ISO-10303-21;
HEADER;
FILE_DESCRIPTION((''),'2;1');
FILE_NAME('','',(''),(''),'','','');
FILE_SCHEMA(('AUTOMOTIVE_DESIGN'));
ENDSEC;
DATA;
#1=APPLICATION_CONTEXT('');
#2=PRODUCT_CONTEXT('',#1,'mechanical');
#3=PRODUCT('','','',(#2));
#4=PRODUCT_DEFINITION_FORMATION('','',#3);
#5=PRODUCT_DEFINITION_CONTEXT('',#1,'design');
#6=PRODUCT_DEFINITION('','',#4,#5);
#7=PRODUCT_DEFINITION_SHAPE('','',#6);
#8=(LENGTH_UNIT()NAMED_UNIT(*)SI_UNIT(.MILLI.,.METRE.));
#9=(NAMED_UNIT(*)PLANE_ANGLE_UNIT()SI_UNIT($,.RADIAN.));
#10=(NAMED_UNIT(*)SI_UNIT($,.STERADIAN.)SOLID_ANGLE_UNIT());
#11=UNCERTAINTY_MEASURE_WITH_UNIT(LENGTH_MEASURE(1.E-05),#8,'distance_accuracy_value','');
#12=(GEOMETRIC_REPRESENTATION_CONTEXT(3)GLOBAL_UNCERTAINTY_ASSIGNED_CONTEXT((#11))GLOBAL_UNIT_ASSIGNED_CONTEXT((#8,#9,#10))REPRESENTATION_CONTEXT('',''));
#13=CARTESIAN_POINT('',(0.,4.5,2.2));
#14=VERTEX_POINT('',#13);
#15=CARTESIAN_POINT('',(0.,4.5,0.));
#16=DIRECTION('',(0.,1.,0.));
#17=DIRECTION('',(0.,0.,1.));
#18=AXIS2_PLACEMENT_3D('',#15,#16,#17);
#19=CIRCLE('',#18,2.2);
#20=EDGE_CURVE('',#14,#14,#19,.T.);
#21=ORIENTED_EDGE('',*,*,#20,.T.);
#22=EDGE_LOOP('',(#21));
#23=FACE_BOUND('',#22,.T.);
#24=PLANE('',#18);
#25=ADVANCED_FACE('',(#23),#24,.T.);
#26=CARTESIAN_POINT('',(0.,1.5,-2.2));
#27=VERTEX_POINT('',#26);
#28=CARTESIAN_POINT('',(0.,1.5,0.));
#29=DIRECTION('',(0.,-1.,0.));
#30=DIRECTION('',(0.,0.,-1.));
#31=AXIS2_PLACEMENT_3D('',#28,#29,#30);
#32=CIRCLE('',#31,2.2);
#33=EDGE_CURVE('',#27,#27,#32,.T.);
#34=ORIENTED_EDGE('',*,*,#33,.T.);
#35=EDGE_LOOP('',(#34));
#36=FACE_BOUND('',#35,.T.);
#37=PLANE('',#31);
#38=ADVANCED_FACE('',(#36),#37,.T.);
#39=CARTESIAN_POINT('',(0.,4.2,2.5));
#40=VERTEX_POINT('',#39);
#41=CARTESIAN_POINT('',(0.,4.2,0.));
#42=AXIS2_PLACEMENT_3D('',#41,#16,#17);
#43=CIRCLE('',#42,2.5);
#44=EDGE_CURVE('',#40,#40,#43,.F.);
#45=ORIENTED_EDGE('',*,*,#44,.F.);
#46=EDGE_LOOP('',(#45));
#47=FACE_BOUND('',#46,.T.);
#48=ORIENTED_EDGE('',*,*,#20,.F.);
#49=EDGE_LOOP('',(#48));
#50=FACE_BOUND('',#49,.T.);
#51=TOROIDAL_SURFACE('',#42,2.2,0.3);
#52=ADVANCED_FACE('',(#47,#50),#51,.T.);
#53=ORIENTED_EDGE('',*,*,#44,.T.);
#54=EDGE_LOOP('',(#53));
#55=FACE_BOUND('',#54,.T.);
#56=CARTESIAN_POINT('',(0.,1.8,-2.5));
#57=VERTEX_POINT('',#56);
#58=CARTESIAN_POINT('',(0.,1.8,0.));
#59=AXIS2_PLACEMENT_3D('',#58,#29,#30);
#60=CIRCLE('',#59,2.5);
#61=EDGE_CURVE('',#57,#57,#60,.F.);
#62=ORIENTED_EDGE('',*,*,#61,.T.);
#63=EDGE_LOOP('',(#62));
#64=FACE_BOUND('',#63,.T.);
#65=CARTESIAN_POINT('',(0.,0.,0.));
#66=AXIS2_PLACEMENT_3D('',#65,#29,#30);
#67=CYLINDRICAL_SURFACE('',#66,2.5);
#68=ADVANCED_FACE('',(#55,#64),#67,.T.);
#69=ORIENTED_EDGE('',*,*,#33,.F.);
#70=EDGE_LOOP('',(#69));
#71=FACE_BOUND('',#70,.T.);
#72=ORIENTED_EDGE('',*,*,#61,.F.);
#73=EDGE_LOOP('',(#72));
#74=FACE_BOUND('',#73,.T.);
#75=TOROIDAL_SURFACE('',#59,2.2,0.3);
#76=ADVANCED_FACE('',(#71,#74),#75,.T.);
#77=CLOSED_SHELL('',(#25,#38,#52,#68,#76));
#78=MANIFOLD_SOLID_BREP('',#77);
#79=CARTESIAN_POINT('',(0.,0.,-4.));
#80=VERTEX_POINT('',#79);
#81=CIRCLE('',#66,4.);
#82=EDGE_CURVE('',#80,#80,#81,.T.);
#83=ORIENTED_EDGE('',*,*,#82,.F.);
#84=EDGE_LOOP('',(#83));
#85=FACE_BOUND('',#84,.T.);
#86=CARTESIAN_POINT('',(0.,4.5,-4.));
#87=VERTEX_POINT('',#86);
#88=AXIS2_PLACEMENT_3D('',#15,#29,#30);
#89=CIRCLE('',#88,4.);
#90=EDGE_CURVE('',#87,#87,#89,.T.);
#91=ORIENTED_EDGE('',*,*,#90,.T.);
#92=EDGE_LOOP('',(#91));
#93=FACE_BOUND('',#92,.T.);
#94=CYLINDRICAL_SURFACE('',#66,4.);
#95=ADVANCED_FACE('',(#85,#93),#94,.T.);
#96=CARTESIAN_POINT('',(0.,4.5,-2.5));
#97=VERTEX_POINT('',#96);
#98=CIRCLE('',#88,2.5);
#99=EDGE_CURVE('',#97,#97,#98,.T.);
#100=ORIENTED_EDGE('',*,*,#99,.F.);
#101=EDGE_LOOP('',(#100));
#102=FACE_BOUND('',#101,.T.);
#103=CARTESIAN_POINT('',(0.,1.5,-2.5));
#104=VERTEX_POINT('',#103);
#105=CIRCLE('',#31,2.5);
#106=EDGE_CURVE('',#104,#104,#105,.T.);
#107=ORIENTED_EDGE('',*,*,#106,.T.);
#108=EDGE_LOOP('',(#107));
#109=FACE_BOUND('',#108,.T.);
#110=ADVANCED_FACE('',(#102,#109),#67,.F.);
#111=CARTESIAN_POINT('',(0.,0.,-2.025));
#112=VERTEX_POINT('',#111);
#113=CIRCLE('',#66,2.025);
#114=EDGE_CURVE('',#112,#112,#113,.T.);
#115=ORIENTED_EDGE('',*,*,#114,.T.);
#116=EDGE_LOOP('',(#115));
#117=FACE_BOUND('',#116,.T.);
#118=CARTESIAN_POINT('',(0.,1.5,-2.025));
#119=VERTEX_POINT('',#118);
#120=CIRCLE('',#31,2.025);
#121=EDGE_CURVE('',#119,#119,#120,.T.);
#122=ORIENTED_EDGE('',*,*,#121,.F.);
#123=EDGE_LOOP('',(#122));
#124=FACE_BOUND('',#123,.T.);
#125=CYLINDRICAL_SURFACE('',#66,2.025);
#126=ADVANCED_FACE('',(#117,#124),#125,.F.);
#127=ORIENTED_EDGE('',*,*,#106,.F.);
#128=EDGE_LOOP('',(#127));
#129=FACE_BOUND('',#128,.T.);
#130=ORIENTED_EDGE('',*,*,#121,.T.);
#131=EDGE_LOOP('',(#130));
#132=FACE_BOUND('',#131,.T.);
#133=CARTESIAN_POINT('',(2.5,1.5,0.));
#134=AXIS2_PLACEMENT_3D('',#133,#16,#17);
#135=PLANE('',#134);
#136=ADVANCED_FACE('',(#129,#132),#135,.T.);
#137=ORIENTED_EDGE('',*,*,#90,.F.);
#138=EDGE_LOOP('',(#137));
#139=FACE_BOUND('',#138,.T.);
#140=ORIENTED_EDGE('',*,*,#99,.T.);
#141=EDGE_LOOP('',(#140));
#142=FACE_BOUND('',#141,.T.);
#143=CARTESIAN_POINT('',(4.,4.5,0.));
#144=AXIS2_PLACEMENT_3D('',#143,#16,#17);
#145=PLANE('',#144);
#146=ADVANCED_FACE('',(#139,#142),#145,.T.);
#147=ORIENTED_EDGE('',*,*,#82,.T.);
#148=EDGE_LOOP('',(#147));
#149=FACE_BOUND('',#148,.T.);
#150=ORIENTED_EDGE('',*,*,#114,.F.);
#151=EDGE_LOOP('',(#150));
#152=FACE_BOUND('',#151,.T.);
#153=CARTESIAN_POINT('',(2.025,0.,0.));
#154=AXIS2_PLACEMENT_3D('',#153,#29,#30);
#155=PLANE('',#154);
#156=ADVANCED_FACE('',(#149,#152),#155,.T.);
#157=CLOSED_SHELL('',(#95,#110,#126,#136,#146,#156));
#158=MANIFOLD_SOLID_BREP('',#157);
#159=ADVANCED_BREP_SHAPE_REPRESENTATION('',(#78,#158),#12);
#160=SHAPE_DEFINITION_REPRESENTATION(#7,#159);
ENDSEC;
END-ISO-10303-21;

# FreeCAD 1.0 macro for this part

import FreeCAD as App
import Part
import Sketcher

V = App.Vector
Q = App.Units.Quantity


def edges_at(feature, points):
    """Names of the edges that pass closest to the given points."""
    edges = feature.Shape.Edges
    near = lambda p: min(range(len(edges)), key=lambda i: edges[i].distToShape(Part.Vertex(*p))[0])
    return sorted({f"Edge{near(p) + 1}" for p in points})

doc = App.newDocument("Part")
body = doc.addObject("PartDesign::Body", "Body")

sketch1 = body.newObject("Sketcher::SketchObject", "Sketch")
sketch1.AttachmentSupport = (doc.getObject("XY_Plane"), [""])
sketch1.MapMode = "FlatFace"
sketch1.addGeometry(Part.LineSegment(V(2.02, 1.5, 0), V(2.02, 0, 0)), False)
sketch1.addGeometry(Part.LineSegment(V(2.02, 0, 0), V(4, 0, 0)), False)
sketch1.addGeometry(Part.LineSegment(V(4, 0, 0), V(4, 4.5, 0)), False)
sketch1.addGeometry(Part.LineSegment(V(4, 4.5, 0), V(2.5, 4.5, 0)), False)
sketch1.addGeometry(Part.LineSegment(V(2.5, 4.5, 0), V(2.5, 1.5, 0)), False)
sketch1.addGeometry(Part.LineSegment(V(2.5, 1.5, 0), V(2.02, 1.5, 0)), False)
sketch1.addConstraint(Sketcher.Constraint("Coincident", 0, 2, 1, 1))
sketch1.addConstraint(Sketcher.Constraint("Coincident", 1, 2, 2, 1))
sketch1.addConstraint(Sketcher.Constraint("Coincident", 2, 2, 3, 1))
sketch1.addConstraint(Sketcher.Constraint("Coincident", 3, 2, 4, 1))
sketch1.addConstraint(Sketcher.Constraint("Coincident", 4, 2, 5, 1))
sketch1.addConstraint(Sketcher.Constraint("Coincident", 5, 2, 0, 1))
sketch1.addConstraint(Sketcher.Constraint("Vertical", 0))
sketch1.addConstraint(Sketcher.Constraint("Horizontal", 1))
sketch1.addConstraint(Sketcher.Constraint("Vertical", 2))
sketch1.addConstraint(Sketcher.Constraint("Horizontal", 3))
sketch1.addConstraint(Sketcher.Constraint("Vertical", 4))
sketch1.addConstraint(Sketcher.Constraint("Horizontal", 5))
sketch1.addConstraint(Sketcher.Constraint("PointOnObject", 0, 2, -1))
sketch1.addConstraint(Sketcher.Constraint("Equal", 3, 0))
sketch1.addConstraint(Sketcher.Constraint("DistanceY", 4, 2, 4, 1, Q("3 mm")))
sketch1.addConstraint(Sketcher.Constraint("DistanceX", 3, 2, 3, 1, Q("1.5 mm")))
sketch1.addConstraint(Sketcher.Constraint("DistanceX", -1, 1, 1, 2, Q("4 mm")))
sketch1.addConstraint(Sketcher.Constraint("DistanceX", 1, 1, 1, 2, Q("1.975 mm")))
revolution = body.newObject("PartDesign::Revolution", "Revolution")
revolution.Profile = sketch1
revolution.ReferenceAxis = (sketch1, ["V_Axis"])
revolution.Angle = 360
body2 = doc.addObject("PartDesign::Body", "Body001")

sketch2 = body2.newObject("Sketcher::SketchObject", "Sketch001")
sketch2.AttachmentSupport = (doc.getObject("XY_Plane001"), [""])
sketch2.MapMode = "FlatFace"
sketch2.addGeometry(Part.LineSegment(V(0, 4.5, 0), V(0, 1.5, 0)), False)
sketch2.addGeometry(Part.LineSegment(V(0, 1.5, 0), V(2.5, 1.5, 0)), False)
sketch2.addGeometry(Part.LineSegment(V(2.5, 1.5, 0), V(2.5, 4.5, 0)), False)
sketch2.addGeometry(Part.LineSegment(V(2.5, 4.5, 0), V(0, 4.5, 0)), False)
sketch2.addConstraint(Sketcher.Constraint("Coincident", 0, 2, 1, 1))
sketch2.addConstraint(Sketcher.Constraint("Coincident", 1, 2, 2, 1))
sketch2.addConstraint(Sketcher.Constraint("Coincident", 2, 2, 3, 1))
sketch2.addConstraint(Sketcher.Constraint("Coincident", 3, 2, 0, 1))
sketch2.addConstraint(Sketcher.Constraint("Vertical", 0))
sketch2.addConstraint(Sketcher.Constraint("Horizontal", 1))
sketch2.addConstraint(Sketcher.Constraint("Vertical", 2))
sketch2.addConstraint(Sketcher.Constraint("Horizontal", 3))
sketch2.addConstraint(Sketcher.Constraint("PointOnObject", 0, 2, -2))
sketch2.addConstraint(Sketcher.Constraint("DistanceY", 0, 2, 0, 1, Q("3 mm")))
sketch2.addConstraint(Sketcher.Constraint("DistanceX", 1, 1, 1, 2, Q("2.5 mm")))
sketch2.addConstraint(Sketcher.Constraint("DistanceY", -1, 1, 0, 2, Q("1.5 mm")))
revolution2 = body2.newObject("PartDesign::Revolution", "Revolution001")
revolution2.Profile = sketch2
revolution2.ReferenceAxis = (sketch2, ["V_Axis"])
revolution2.Angle = 360
doc.recompute()

fillet = body2.newObject("PartDesign::Fillet", "Fillet")
fillet.Base = (revolution2, edges_at(revolution2, [(-2.5, 4.5, 0), (-2.5, 1.5, 0)]))
fillet.Radius = 0.3

doc.recompute()
